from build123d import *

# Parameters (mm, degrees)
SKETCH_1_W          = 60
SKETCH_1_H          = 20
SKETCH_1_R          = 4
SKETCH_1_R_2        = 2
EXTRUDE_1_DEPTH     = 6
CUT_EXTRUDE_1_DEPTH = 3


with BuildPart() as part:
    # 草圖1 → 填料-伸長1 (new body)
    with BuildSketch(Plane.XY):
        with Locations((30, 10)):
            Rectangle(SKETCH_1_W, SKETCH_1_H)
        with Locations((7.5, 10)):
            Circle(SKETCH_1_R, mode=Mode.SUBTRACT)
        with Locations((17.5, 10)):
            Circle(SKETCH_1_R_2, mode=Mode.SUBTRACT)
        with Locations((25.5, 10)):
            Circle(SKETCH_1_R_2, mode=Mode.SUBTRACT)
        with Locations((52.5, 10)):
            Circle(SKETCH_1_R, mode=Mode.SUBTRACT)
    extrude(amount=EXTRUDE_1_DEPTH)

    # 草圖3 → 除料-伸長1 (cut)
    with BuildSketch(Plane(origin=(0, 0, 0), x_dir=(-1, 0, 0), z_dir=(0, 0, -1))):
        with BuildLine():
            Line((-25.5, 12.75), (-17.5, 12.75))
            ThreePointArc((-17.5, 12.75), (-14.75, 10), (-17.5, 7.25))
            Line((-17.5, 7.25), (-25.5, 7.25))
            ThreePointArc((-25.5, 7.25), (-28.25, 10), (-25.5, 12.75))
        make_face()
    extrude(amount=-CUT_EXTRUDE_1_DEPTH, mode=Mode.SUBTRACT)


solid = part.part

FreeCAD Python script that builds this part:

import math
import FreeCAD as App
import Part
import Sketcher
Q = App.Units.Quantity


def add_polygon(sketch, points):
    """Adds a closed chain of lines whose ends are joined by coincident constraints."""
    first, n = sketch.GeometryCount, len(points)
    for a, b in zip(points, points[1:] + points[:1]):
        sketch.addGeometry(Part.LineSegment(App.Vector(*a, 0), App.Vector(*b, 0)), False)
    for i in range(n):
        sketch.addConstraint(Sketcher.Constraint("Coincident", first + i, 2, first + (i + 1) % n, 1))

doc = App.newDocument("Part")
body = doc.addObject("PartDesign::Body", "Body")

# Sketch on XY plane
sketch1 = body.newObject("Sketcher::SketchObject", "Sketch")
sketch1.AttachmentSupport = (doc.getObject("XY_Plane"), [""])
sketch1.MapMode = "FlatFace"
add_polygon(sketch1, [(0, 20), (0, 0), (60, 0), (60, 20)])  # lines 0-3
sketch1.addGeometry(Part.Circle(App.Vector(7.5, 10, 0), App.Vector(0, 0, 1), 4), False)  # 4
sketch1.addGeometry(Part.Circle(App.Vector(17.5, 10, 0), App.Vector(0, 0, 1), 2), False)  # 5
sketch1.addGeometry(Part.Circle(App.Vector(25.5, 10, 0), App.Vector(0, 0, 1), 2), False)  # 6
sketch1.addGeometry(Part.Circle(App.Vector(52.5, 10, 0), App.Vector(0, 0, 1), 4), False)  # 7
sketch1.addConstraint([
    Sketcher.Constraint("Vertical", 0),
    Sketcher.Constraint("Horizontal", 1),
    Sketcher.Constraint("Vertical", 2),
    Sketcher.Constraint("Horizontal", 3),
    Sketcher.Constraint("Coincident", 0, 2, -1, 1),
    Sketcher.Constraint("Equal", 5, 6),
    Sketcher.Constraint("Equal", 4, 7),
    Sketcher.Constraint("Horizontal", 4, 3, 5, 3),
    Sketcher.Constraint("Horizontal", 5, 3, 6, 3),
    Sketcher.Constraint("Horizontal", 6, 3, 7, 3),
    Sketcher.Constraint("Diameter", 4, Q("8 mm")),
    Sketcher.Constraint("Diameter", 5, Q("4 mm")),
    Sketcher.Constraint("DistanceX", 1, 1, 1, 2, Q("60 mm")),
    Sketcher.Constraint("DistanceY", 0, 2, 0, 1, Q("20 mm")),
    Sketcher.Constraint("DistanceY", -1, 1, 4, 3, Q("10 mm")),
    Sketcher.Constraint("DistanceX", 4, 3, 5, 3, Q("10 mm")),
    Sketcher.Constraint("DistanceX", 5, 3, 6, 3, Q("8 mm")),
    Sketcher.Constraint("DistanceX", 6, 3, 7, 3, Q("27 mm")),
    Sketcher.Constraint("DistanceX", -1, 1, 4, 3, Q("7.5 mm")),
])
pad1 = body.newObject("PartDesign::Pad", "Pad")
pad1.Profile = sketch1
pad1.Length = 6

# Sketch on XY plane
sketch2 = body.newObject("Sketcher::SketchObject", "Sketch001")
sketch2.AttachmentSupport = (doc.getObject("XY_Plane"), [""])
sketch2.MapMode = "FlatFace"
sketch2.addGeometry([
    Part.LineSegment(App.Vector(17.5, 12.75, 0), App.Vector(25.5, 12.75, 0)),
    Part.ArcOfCircle(Part.Circle(App.Vector(25.5, 10, 0), App.Vector(0, 0, 1), 2.75), math.radians(-90), math.radians(90)),
    Part.LineSegment(App.Vector(25.5, 7.25, 0), App.Vector(17.5, 7.25, 0)),
    Part.ArcOfCircle(Part.Circle(App.Vector(17.5, 10, 0), App.Vector(0, 0, 1), 2.75), math.radians(90), math.radians(270)),
], False)
sketch2.addConstraint([
    Sketcher.Constraint("Tangent", 0, 2, 1, 2),
    Sketcher.Constraint("Tangent", 1, 1, 2, 1),
    Sketcher.Constraint("Tangent", 2, 2, 3, 2),
    Sketcher.Constraint("Tangent", 3, 1, 0, 1),
    Sketcher.Constraint("Horizontal", 0),
    Sketcher.Constraint("Horizontal", 2),
    Sketcher.Constraint("DistanceX", 0, 1, 0, 2, Q("8 mm")),
    Sketcher.Constraint("Radius", 1, Q("2.75 mm")),
    Sketcher.Constraint("DistanceY", -1, 1, 1, 3, Q("10 mm")),
    Sketcher.Constraint("DistanceX", -1, 1, 1, 3, Q("25.5 mm")),
])
pocket1 = body.newObject("PartDesign::Pocket", "Pocket")
pocket1.Profile = sketch2
pocket1.Length = 3
pocket1.Reversed = True

doc.recompute()
